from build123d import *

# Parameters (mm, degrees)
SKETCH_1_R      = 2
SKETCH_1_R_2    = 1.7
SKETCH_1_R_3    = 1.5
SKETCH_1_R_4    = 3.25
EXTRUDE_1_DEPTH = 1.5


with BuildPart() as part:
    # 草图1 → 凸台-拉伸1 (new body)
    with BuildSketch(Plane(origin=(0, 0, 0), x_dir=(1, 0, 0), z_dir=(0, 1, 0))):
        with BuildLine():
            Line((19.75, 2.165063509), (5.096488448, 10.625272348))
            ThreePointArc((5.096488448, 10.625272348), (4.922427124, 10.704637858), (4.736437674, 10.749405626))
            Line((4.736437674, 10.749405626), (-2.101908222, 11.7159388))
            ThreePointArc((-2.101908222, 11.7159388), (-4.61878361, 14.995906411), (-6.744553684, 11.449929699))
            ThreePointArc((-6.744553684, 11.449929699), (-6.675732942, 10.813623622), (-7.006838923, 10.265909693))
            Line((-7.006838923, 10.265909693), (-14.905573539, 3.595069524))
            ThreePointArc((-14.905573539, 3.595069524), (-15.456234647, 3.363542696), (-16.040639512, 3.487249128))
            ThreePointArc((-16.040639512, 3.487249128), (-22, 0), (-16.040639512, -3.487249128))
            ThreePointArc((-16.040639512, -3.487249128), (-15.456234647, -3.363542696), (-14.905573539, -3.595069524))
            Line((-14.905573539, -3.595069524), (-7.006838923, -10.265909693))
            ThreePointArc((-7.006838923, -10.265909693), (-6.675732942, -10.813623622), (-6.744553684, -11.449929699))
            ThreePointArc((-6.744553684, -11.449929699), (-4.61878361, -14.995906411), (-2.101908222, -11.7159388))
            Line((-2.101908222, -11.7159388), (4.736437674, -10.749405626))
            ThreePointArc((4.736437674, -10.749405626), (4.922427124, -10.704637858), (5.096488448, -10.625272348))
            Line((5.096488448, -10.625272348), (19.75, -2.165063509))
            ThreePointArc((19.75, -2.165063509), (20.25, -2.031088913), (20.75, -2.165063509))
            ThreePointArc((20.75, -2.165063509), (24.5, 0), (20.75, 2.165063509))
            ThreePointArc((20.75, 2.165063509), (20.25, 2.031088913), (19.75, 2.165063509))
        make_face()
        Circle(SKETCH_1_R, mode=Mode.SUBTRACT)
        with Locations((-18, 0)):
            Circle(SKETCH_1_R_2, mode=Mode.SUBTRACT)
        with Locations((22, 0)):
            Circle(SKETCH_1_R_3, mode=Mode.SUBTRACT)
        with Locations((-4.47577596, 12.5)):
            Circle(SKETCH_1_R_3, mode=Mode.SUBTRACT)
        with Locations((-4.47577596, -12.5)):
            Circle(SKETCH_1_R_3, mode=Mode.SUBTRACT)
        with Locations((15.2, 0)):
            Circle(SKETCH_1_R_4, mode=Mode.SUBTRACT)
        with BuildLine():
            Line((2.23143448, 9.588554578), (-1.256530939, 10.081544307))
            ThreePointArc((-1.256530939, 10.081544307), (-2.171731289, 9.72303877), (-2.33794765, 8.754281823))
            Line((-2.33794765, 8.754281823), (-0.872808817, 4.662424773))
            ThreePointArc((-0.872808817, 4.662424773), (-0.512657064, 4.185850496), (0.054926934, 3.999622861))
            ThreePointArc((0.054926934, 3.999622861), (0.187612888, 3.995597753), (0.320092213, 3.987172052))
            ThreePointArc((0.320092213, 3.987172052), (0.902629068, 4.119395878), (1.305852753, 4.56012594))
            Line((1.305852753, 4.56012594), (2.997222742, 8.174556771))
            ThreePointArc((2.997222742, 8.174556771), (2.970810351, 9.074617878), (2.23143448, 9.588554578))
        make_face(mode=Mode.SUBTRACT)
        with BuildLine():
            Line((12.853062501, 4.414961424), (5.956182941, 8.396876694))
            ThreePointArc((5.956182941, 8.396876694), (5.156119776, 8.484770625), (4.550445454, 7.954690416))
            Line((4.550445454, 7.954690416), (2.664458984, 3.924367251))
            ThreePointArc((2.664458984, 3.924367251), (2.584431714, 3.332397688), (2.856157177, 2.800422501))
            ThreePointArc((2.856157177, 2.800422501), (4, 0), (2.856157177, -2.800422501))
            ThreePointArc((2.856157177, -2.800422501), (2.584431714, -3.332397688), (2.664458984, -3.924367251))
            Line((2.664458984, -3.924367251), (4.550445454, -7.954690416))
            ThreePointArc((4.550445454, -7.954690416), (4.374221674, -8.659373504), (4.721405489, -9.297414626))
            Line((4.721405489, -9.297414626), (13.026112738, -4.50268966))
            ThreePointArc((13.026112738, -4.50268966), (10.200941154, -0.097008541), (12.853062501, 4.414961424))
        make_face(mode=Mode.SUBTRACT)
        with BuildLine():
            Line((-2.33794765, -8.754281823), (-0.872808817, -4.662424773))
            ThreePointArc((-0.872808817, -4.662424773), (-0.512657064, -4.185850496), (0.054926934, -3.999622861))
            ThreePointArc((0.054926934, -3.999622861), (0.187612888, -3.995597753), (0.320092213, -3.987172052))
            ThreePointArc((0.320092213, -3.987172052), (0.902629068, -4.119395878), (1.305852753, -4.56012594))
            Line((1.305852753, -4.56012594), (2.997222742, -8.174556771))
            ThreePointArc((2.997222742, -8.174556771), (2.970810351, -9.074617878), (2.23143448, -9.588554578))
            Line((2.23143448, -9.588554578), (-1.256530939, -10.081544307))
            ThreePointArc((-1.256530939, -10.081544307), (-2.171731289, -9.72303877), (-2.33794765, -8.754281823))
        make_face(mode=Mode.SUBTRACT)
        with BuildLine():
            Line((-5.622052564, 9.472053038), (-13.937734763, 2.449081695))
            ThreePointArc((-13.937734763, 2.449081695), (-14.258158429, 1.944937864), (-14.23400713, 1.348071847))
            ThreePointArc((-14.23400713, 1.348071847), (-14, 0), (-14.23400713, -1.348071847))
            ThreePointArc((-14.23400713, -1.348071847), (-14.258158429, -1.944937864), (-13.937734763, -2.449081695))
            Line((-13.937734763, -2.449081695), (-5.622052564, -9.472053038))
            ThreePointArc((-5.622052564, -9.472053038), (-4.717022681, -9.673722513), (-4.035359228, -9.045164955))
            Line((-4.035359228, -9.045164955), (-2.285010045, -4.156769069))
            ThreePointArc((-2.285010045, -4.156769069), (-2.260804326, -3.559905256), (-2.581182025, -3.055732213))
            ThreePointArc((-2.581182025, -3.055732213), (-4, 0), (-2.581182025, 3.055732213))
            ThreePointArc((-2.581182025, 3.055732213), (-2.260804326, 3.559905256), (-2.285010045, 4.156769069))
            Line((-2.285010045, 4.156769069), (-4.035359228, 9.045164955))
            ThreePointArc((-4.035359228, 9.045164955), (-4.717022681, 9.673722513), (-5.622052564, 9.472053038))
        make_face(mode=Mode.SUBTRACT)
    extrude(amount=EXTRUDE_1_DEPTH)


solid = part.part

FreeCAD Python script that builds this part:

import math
import FreeCAD as App
import Part
import Sketcher

V = App.Vector
Q = App.Units.Quantity

doc = App.newDocument("Part")
body = doc.addObject("PartDesign::Body", "Body")

sketch1 = doc.addObject("Sketcher::SketchObject", "Sketch")
body.addObject(sketch1)
sketch1.AttachmentSupport = (doc.XZ_Plane, [""])
sketch1.MapMode = "FlatFace"
sketch1.addGeometry([
    Part.LineSegment(V(19.75, -2.17, 0), V(5.1, -10.63, 0)),
    Part.ArcOfCircle(Part.Circle(V(4.6, -9.76, 0), V(0, 0, 1), 1), math.radians(-82), math.radians(-60)),
    Part.LineSegment(V(4.74, -10.75, 0), V(-2.1, -11.72, 0)),
    Part.ArcOfCircle(Part.Circle(V(-4.48, -12.5, 0), V(0, 0, 1), 2.5), math.radians(155), math.radians(378)),
    Part.ArcOfCircle(Part.Circle(V(-7.65, -11.03, 0), V(0, 0, 1), 1), math.radians(-25), math.radians(50)),
    Part.LineSegment(V(-7.01, -10.27, 0), V(-14.91, -3.6, 0)),
    Part.ArcOfCircle(Part.Circle(V(-15.55, -4.36, 0), V(0, 0, 1), 1), math.radians(50), math.radians(119)),
    Part.ArcOfCircle(Part.Circle(V(-18, 0, 0), V(0, 0, 1), 4), math.radians(61), math.radians(299)),
    Part.ArcOfCircle(Part.Circle(V(-15.55, 4.36, 0), V(0, 0, 1), 1), math.radians(-119), math.radians(-50)),
    Part.LineSegment(V(-14.91, 3.6, 0), V(-7.01, 10.27, 0)),
    Part.ArcOfCircle(Part.Circle(V(-7.65, 11.03, 0), V(0, 0, 1), 1), math.radians(-50), math.radians(25)),
    Part.ArcOfCircle(Part.Circle(V(-4.48, 12.5, 0), V(0, 0, 1), 2.5), math.radians(-18), math.radians(205)),
    Part.LineSegment(V(-2.1, 11.72, 0), V(4.74, 10.75, 0)),
    Part.ArcOfCircle(Part.Circle(V(4.6, 9.76, 0), V(0, 0, 1), 1), math.radians(60), math.radians(82)),
    Part.LineSegment(V(5.1, 10.63, 0), V(19.75, 2.17, 0)),
    Part.ArcOfCircle(Part.Circle(V(20.25, 3.03, 0), V(0, 0, 1), 1), math.radians(-120), math.radians(-60)),
    Part.ArcOfCircle(Part.Circle(V(22, 0, 0), V(0, 0, 1), 2.5), math.radians(-120), math.radians(120)),
    Part.ArcOfCircle(Part.Circle(V(20.25, -3.03, 0), V(0, 0, 1), 1), math.radians(60), math.radians(120)),
    Part.Circle(V(-4.48, 12.5, 0), V(0, 0, 1), 1.5),
    Part.ArcOfCircle(Part.Circle(V(-1.4, 9.09, 0), V(0, 0, 1), 1), math.radians(82), math.radians(200)),
    Part.LineSegment(V(-2.34, 8.75, 0), V(-0.87, 4.66, 0)),
    Part.ArcOfCircle(Part.Circle(V(0.07, 5, 0), V(0, 0, 1), 1), math.radians(-160), math.radians(-91)),
    Part.ArcOfCircle(Part.Circle(V(0, 0, 0), V(0, 0, 1), 4), math.radians(85.41), math.radians(89.21)),
    Part.ArcOfCircle(Part.Circle(V(0.4, 4.98, 0), V(0, 0, 1), 1), math.radians(-95), math.radians(-25)),
    Part.LineSegment(V(1.31, 4.56, 0), V(3, 8.17, 0)),
    Part.ArcOfCircle(Part.Circle(V(2.09, 8.6, 0), V(0, 0, 1), 1), math.radians(-25), math.radians(82)),
    Part.LineSegment(V(2.23, 9.59, 0), V(-1.26, 10.08, 0)),
    Part.LineSegment(V(5.96, -8.4, 0), V(12.85, -4.41, 0)),
    Part.ArcOfCircle(Part.Circle(V(15.2, 0, 0), V(0, 0, 1), 5), math.radians(116), math.radians(242)),
    Part.LineSegment(V(13.03, 4.5, 0), V(4.72, 9.3, 0)),
    Part.ArcOfCircle(Part.Circle(V(5.37, 8.53, 0), V(0, 0, 1), 1), math.radians(130), math.radians(215)),
    Part.LineSegment(V(4.55, 7.95, 0), V(2.66, 3.92, 0)),
    Part.ArcOfCircle(Part.Circle(V(3.57, 3.5, 0), V(0, 0, 1), 1), math.radians(155), math.radians(224)),
    Part.ArcOfCircle(Part.Circle(V(0, 0, 0), V(0, 0, 1), 4), math.radians(-44), math.radians(44)),
    Part.ArcOfCircle(Part.Circle(V(3.57, -3.5, 0), V(0, 0, 1), 1), math.radians(136), math.radians(205)),
    Part.LineSegment(V(2.66, -3.92, 0), V(4.55, -7.95, 0)),
    Part.ArcOfCircle(Part.Circle(V(5.46, -7.53, 0), V(0, 0, 1), 1), math.radians(-155), math.radians(-60)),
    Part.Circle(V(-18, 0, 0), V(0, 0, 1), 1.7),
    Part.LineSegment(V(-13.94, -2.45, 0), V(-5.62, -9.47, 0)),
    Part.ArcOfCircle(Part.Circle(V(-4.98, -8.71, 0), V(0, 0, 1), 1), math.radians(-130), math.radians(-20)),
    Part.LineSegment(V(-4.04, -9.05, 0), V(-2.29, -4.16, 0)),
    Part.ArcOfCircle(Part.Circle(V(-3.23, -3.82, 0), V(0, 0, 1), 1), math.radians(-20), math.radians(50)),
    Part.ArcOfCircle(Part.Circle(V(0, 0, 0), V(0, 0, 1), 4), math.radians(130), math.radians(230)),
    Part.ArcOfCircle(Part.Circle(V(-3.23, 3.82, 0), V(0, 0, 1), 1), math.radians(-50), math.radians(20)),
    Part.LineSegment(V(-2.29, 4.16, 0), V(-4.04, 9.05, 0)),
    Part.ArcOfCircle(Part.Circle(V(-4.98, 8.71, 0), V(0, 0, 1), 1), math.radians(20), math.radians(130)),
    Part.LineSegment(V(-5.62, 9.47, 0), V(-13.94, 2.45, 0)),
    Part.ArcOfCircle(Part.Circle(V(-13.29, 1.69, 0), V(0, 0, 1), 1), math.radians(130), math.radians(200)),
    Part.ArcOfCircle(Part.Circle(V(-18, 0, 0), V(0, 0, 1), 4), math.radians(-20), math.radians(20)),
    Part.ArcOfCircle(Part.Circle(V(-13.29, -1.69, 0), V(0, 0, 1), 1), math.radians(160), math.radians(230)),
    Part.Circle(V(0, 0, 0), V(0, 0, 1), 2),
    Part.LineSegment(V(-1.26, -10.08, 0), V(2.23, -9.59, 0)),
    Part.ArcOfCircle(Part.Circle(V(2.09, -8.6, 0), V(0, 0, 1), 1), math.radians(-82), math.radians(25)),
    Part.LineSegment(V(3, -8.17, 0), V(1.31, -4.56, 0)),
    Part.ArcOfCircle(Part.Circle(V(0.4, -4.98, 0), V(0, 0, 1), 1), math.radians(25), math.radians(95)),
    Part.ArcOfCircle(Part.Circle(V(0, 0, 0), V(0, 0, 1), 4), math.radians(-89.21), math.radians(-85.41)),
    Part.ArcOfCircle(Part.Circle(V(0.07, -5, 0), V(0, 0, 1), 1), math.radians(91), math.radians(160)),
    Part.LineSegment(V(-0.87, -4.66, 0), V(-2.34, -8.75, 0)),
    Part.ArcOfCircle(Part.Circle(V(-1.4, -9.09, 0), V(0, 0, 1), 1), math.radians(160), math.radians(278)),
    Part.Circle(V(-4.48, -12.5, 0), V(0, 0, 1), 1.5),
    Part.Circle(V(15.2, 0, 0), V(0, 0, 1), 3.25),
    Part.Circle(V(22, 0, 0), V(0, 0, 1), 1.5),
], False)
sketch1.addConstraint([
    Sketcher.Constraint("Tangent", 0, 2, 1, 2),
    Sketcher.Constraint("Tangent", 1, 1, 2, 1),
    Sketcher.Constraint("Coincident", 2, 2, 3, 2),
    Sketcher.Constraint("Tangent", 3, 1, 4, 1),
    Sketcher.Constraint("Tangent", 4, 2, 5, 1),
    Sketcher.Constraint("Tangent", 5, 2, 6, 1),
    Sketcher.Constraint("Tangent", 6, 2, 7, 2),
    Sketcher.Constraint("Tangent", 7, 1, 8, 1),
    Sketcher.Constraint("Tangent", 8, 2, 9, 1),
    Sketcher.Constraint("Tangent", 9, 2, 10, 1),
    Sketcher.Constraint("Tangent", 10, 2, 11, 2),
    Sketcher.Constraint("Coincident", 11, 1, 12, 1),
    Sketcher.Constraint("Tangent", 12, 2, 13, 2),
    Sketcher.Constraint("Tangent", 13, 1, 14, 1),
    Sketcher.Constraint("Tangent", 14, 2, 15, 1),
    Sketcher.Constraint("Tangent", 15, 2, 16, 2),
    Sketcher.Constraint("Tangent", 16, 1, 17, 1),
    Sketcher.Constraint("Tangent", 17, 2, 0, 1),
    Sketcher.Constraint("Tangent", 19, 2, 20, 1),
    Sketcher.Constraint("Tangent", 20, 2, 21, 1),
    Sketcher.Constraint("Tangent", 21, 2, 22, 2),
    Sketcher.Constraint("Tangent", 22, 1, 23, 1),
    Sketcher.Constraint("Tangent", 23, 2, 24, 1),
    Sketcher.Constraint("Tangent", 24, 2, 25, 1),
    Sketcher.Constraint("Tangent", 25, 2, 26, 1),
    Sketcher.Constraint("Tangent", 26, 2, 19, 1),
    Sketcher.Constraint("Coincident", 27, 2, 28, 2),
    Sketcher.Constraint("Coincident", 28, 1, 29, 1),
    Sketcher.Constraint("Coincident", 29, 2, 30, 1),
    Sketcher.Constraint("Coincident", 30, 2, 31, 1),
    Sketcher.Constraint("Tangent", 31, 2, 32, 1),
    Sketcher.Constraint("Tangent", 32, 2, 33, 2),
    Sketcher.Constraint("Tangent", 33, 1, 34, 1),
    Sketcher.Constraint("Tangent", 34, 2, 35, 1),
    Sketcher.Constraint("Tangent", 35, 2, 36, 1),
    Sketcher.Constraint("Tangent", 36, 2, 27, 1),
    Sketcher.Constraint("Tangent", 38, 2, 39, 1),
    Sketcher.Constraint("Tangent", 39, 2, 40, 1),
    Sketcher.Constraint("Tangent", 40, 2, 41, 1),
    Sketcher.Constraint("Tangent", 41, 2, 42, 2),
    Sketcher.Constraint("Tangent", 42, 1, 43, 1),
    Sketcher.Constraint("Tangent", 43, 2, 44, 1),
    Sketcher.Constraint("Tangent", 44, 2, 45, 1),
    Sketcher.Constraint("Tangent", 45, 2, 46, 1),
    Sketcher.Constraint("Tangent", 46, 2, 47, 1),
    Sketcher.Constraint("Tangent", 47, 2, 48, 2),
    Sketcher.Constraint("Tangent", 48, 1, 49, 1),
    Sketcher.Constraint("Tangent", 49, 2, 38, 1),
    Sketcher.Constraint("Tangent", 51, 2, 52, 1),
    Sketcher.Constraint("Tangent", 52, 2, 53, 1),
    Sketcher.Constraint("Tangent", 53, 2, 54, 1),
    Sketcher.Constraint("Tangent", 54, 2, 55, 2),
    Sketcher.Constraint("Tangent", 55, 1, 56, 1),
    Sketcher.Constraint("Tangent", 56, 2, 57, 1),
    Sketcher.Constraint("Tangent", 57, 2, 58, 1),
    Sketcher.Constraint("Tangent", 58, 2, 51, 1),
    Sketcher.Constraint("Coincident", 22, 3, -1, 1),
    Sketcher.Constraint("Coincident", 33, 3, -1, 1),
    Sketcher.Constraint("Coincident", 42, 3, -1, 1),
    Sketcher.Constraint("Coincident", 50, 3, -1, 1),
    Sketcher.Constraint("Coincident", 55, 3, -1, 1),
    Sketcher.Constraint("Coincident", 18, 3, 11, 3),
    Sketcher.Constraint("Coincident", 37, 3, 7, 3),
    Sketcher.Constraint("Coincident", 48, 3, 7, 3),
    Sketcher.Constraint("Coincident", 59, 3, 3, 3),
    Sketcher.Constraint("Coincident", 60, 3, 28, 3),
    Sketcher.Constraint("Coincident", 61, 3, 16, 3),
    Sketcher.Constraint("Equal", 1, 4),
    Sketcher.Constraint("Equal", 4, 6),
    Sketcher.Constraint("Equal", 6, 8),
    Sketcher.Constraint("Equal", 8, 10),
    Sketcher.Constraint("Equal", 3, 11),
    Sketcher.Constraint("Equal", 10, 13),
    Sketcher.Constraint("Equal", 13, 15),
    Sketcher.Constraint("Equal", 11, 16),
    Sketcher.Constraint("Equal", 15, 17),
    Sketcher.Constraint("Equal", 17, 19),
    Sketcher.Constraint("Equal", 19, 21),
    Sketcher.Constraint("Equal", 7, 22),
    Sketcher.Constraint("Equal", 21, 23),
    Sketcher.Constraint("Equal", 23, 25),
    Sketcher.Constraint("Equal", 25, 30),
    Sketcher.Constraint("Equal", 30, 32),
    Sketcher.Constraint("Equal", 22, 33),
    Sketcher.Constraint("Equal", 32, 34),
    Sketcher.Constraint("Equal", 34, 36),
    Sketcher.Constraint("Equal", 36, 39),
    Sketcher.Constraint("Equal", 39, 41),
    Sketcher.Constraint("Equal", 33, 42),
    Sketcher.Constraint("Equal", 41, 43),
    Sketcher.Constraint("Equal", 43, 45),
    Sketcher.Constraint("Equal", 45, 47),
    Sketcher.Constraint("Equal", 42, 48),
    Sketcher.Constraint("Equal", 47, 49),
    Sketcher.Constraint("Equal", 49, 52),
    Sketcher.Constraint("Equal", 52, 54),
    Sketcher.Constraint("Equal", 48, 55),
    Sketcher.Constraint("Equal", 54, 56),
    Sketcher.Constraint("Equal", 56, 58),
    Sketcher.Constraint("Equal", 18, 59),
    Sketcher.Constraint("Equal", 59, 61),
    Sketcher.Constraint("Symmetric", 6, 3, 8, 3, -1),
    Sketcher.Constraint("Symmetric", 4, 3, 10, 3, -1),
    Sketcher.Constraint("Symmetric", 1, 3, 13, 3, -1),
    Sketcher.Constraint("Symmetric", 15, 3, 17, 3, -1),
    Sketcher.Constraint("Symmetric", 39, 3, 45, 3, -1),
    Sketcher.Constraint("Symmetric", 25, 3, 52, 3, -1),
    Sketcher.Constraint("Symmetric", 19, 3, 58, 3, -1),
    Sketcher.Constraint("Symmetric", 2, 2, 11, 1, -1),
    Sketcher.Constraint("Symmetric", 31, 2, 34, 2, -1),
    Sketcher.Constraint("PointOnObject", 28, 3, -1),
    Sketcher.Constraint("Parallel", 12, 26),
    Sketcher.Constraint("Parallel", 0, 27),
    Sketcher.Constraint("Parallel", 14, 29),
    Sketcher.Constraint("Parallel", 24, 31),
    Sketcher.Constraint("Parallel", 5, 38),
    Sketcher.Constraint("Parallel", 20, 44),
    Sketcher.Constraint("Parallel", 9, 46),
    Sketcher.Constraint("Parallel", 35, 53),
    Sketcher.Constraint("Parallel", 40, 57),
    Sketcher.Constraint("Horizontal", 14, 2, 15, 2),
    Sketcher.Constraint("Vertical", 41, 3, 43, 3),
    Sketcher.Constraint("Vertical", 30, 2, 35, 2),
    Sketcher.Constraint("Diameter", 18, Q("3 mm")),
    Sketcher.Constraint("Diameter", 50, Q("4 mm")),
    Sketcher.Constraint("Radius", 1, Q("1 mm")),
    Sketcher.Constraint("Radius", 7, Q("4 mm")),
    Sketcher.Constraint("Radius", 28, Q("5 mm")),
    Sketcher.Constraint("Diameter", 37, Q("3.4 mm")),
    Sketcher.Constraint("Diameter", 60, Q("6.5 mm")),
    Sketcher.Constraint("Radius", 3, Q("2.5 mm")),
    Sketcher.Constraint("Angle", 0, Q("-150 deg")),
    Sketcher.Constraint("DistanceX", 7, 3, -1, 1, Q("18 mm")),
    Sketcher.Constraint("DistanceX", -1, 1, 16, 3, Q("22 mm")),
    Sketcher.Constraint("DistanceY", 3, 3, -1, 1, Q("12.5 mm")),
    Sketcher.Constraint("DistanceX", -1, 1, 28, 3, Q("15.2 mm")),
    Sketcher.Constraint("DistanceY", 4, 3, -1, 1, Q("11.029902 mm")),
    Sketcher.Constraint("DistanceX", 6, 3, -1, 1, Q("15.550799 mm")),
    Sketcher.Constraint("Distance", 27, Q("7.963831 mm")),
    Sketcher.Constraint("Distance", 29, Q("9.58945 mm")),
    Sketcher.Constraint("Distance", 31, Q("4.44977 mm")),
    Sketcher.Constraint("DistanceX", -1, 1, 1, 3, Q("4.596488 mm")),
    Sketcher.Constraint("DistanceX", 19, 3, -1, 1, Q("1.39648 mm")),
    Sketcher.Constraint("DistanceX", -1, 1, 21, 3, Q("0.068659 mm")),
    Sketcher.Constraint("DistanceY", -1, 1, 30, 3, Q("8.53307 mm")),
    Sketcher.Constraint("DistanceY", -1, 1, 32, 3, Q("3.500528 mm")),
    Sketcher.Constraint("DistanceY", 39, 3, -1, 1, Q("8.708061 mm")),
    Sketcher.Constraint("DistanceX", 47, 3, -1, 1, Q("13.292509 mm")),
    Sketcher.Constraint("DistanceX", 2, 2, -1, 1, Q("2.101908 mm")),
    Sketcher.Constraint("DistanceY", 2, 2, -1, 1, Q("11.715939 mm")),
    Sketcher.Constraint("DistanceY", -1, 1, 19, 2, Q("8.754282 mm")),
    Sketcher.Constraint("Distance", 24, Q("3.990594 mm")),
])
pad1 = doc.addObject("PartDesign::Pad", "Pad")
body.addObject(pad1)
pad1.Profile = sketch1
pad1.Length = 1.5
pad1.Reversed = True

doc.recompute()
